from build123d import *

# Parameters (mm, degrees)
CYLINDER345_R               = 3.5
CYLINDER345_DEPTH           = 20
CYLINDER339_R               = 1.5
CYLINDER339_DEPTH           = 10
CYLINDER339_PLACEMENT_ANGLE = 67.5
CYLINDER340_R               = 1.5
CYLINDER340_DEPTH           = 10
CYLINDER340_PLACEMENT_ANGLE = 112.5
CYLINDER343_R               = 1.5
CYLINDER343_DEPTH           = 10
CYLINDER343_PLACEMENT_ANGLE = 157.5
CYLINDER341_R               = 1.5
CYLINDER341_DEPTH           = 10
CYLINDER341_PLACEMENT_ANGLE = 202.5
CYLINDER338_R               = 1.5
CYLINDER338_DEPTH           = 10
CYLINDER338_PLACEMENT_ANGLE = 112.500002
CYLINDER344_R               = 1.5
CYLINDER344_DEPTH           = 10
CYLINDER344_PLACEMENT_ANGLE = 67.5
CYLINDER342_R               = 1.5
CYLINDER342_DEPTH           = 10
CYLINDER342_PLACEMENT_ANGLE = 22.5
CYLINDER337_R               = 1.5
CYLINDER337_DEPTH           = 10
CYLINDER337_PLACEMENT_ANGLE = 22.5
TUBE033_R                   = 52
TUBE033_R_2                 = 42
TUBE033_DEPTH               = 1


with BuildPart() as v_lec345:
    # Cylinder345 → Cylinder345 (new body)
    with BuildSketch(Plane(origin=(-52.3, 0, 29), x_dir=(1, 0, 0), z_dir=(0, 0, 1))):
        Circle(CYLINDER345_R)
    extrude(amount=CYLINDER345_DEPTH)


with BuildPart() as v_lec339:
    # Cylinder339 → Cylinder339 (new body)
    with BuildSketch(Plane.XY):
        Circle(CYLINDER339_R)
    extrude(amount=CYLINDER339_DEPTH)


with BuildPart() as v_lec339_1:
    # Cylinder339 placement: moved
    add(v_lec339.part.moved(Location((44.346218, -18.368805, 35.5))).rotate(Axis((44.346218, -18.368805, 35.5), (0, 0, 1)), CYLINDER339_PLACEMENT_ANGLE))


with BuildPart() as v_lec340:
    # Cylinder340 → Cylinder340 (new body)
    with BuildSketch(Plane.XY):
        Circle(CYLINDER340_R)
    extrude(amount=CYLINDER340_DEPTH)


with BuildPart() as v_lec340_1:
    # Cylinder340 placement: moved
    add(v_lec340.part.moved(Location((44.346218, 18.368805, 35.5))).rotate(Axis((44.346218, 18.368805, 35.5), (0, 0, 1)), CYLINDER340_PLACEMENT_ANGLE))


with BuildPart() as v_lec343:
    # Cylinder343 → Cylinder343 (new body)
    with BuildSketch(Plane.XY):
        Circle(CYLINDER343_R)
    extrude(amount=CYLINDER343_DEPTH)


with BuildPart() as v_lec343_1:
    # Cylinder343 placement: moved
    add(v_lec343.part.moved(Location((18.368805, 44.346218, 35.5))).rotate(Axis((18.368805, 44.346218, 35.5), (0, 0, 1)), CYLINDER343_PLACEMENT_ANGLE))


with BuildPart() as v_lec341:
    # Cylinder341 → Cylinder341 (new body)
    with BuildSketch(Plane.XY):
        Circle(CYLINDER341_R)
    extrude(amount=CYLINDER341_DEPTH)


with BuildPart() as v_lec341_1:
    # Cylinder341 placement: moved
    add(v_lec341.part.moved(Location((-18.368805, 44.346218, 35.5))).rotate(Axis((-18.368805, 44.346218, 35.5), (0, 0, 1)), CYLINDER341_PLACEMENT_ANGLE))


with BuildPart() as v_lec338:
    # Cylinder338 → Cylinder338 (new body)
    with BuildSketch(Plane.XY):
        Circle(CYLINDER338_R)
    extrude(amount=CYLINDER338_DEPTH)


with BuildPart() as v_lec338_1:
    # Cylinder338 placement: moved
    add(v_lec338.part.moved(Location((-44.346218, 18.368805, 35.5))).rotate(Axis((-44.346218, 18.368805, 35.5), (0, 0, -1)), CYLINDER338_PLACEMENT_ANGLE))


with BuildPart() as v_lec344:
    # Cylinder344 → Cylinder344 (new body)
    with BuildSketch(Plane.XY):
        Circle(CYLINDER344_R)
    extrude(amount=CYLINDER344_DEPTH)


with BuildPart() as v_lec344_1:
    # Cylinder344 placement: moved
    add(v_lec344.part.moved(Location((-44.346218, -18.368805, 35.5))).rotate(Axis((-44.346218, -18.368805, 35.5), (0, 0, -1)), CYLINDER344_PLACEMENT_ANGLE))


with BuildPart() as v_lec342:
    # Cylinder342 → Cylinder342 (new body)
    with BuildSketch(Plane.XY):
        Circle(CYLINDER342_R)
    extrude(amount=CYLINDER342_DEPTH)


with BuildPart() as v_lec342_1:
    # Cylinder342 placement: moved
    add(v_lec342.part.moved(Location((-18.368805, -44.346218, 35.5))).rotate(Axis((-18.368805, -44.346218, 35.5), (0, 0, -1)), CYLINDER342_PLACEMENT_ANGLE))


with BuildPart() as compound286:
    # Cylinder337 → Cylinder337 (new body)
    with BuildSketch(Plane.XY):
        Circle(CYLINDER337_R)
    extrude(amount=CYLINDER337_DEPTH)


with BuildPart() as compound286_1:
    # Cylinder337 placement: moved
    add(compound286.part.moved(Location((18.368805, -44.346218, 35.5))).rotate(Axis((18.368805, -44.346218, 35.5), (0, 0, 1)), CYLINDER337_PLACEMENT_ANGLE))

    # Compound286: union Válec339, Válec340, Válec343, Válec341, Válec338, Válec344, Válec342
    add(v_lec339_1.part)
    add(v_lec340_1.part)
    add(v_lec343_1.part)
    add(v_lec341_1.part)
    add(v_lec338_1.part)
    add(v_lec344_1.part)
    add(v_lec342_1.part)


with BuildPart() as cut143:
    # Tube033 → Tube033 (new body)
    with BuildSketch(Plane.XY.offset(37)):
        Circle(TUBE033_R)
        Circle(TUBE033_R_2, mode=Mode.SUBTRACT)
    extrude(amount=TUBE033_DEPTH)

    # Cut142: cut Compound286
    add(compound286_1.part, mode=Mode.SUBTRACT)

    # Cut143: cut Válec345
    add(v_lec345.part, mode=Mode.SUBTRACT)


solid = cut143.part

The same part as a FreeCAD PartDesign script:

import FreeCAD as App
import Part
import Sketcher

doc = App.newDocument("Part")
params = doc.addObject("Spreadsheet::Sheet", "Params")
for row, (alias, value) in enumerate([
    ("sketch1_diameter", "7 mm"),
    ("pad1_length", "20 mm"),
    ("sketch2_diameter", "3 mm"),
    ("pad2_length", "10 mm"),
    ("sketch3_diameter", "3 mm"),
    ("pad3_length", "10 mm"),
    ("sketch4_diameter", "3 mm"),
    ("pad4_length", "10 mm"),
    ("sketch5_diameter", "3 mm"),
    ("pad5_length", "10 mm"),
    ("sketch6_diameter", "3 mm"),
    ("pad6_length", "10 mm"),
    ("sketch7_diameter", "3 mm"),
    ("pad7_length", "10 mm"),
    ("sketch8_diameter", "3 mm"),
    ("pad8_length", "10 mm"),
    ("sketch9_diameter", "3 mm"),
    ("pad9_length", "10 mm"),
    ("sketch10_diameter", "104 mm"),
    ("sketch10_diameter2", "84 mm"),
    ("pad10_length", "1 mm"),
], start=1):
    params.set(f"A{row}", alias)
    params.set(f"B{row}", "=" + value)
    params.setAlias(f"B{row}", alias)

body = doc.addObject("PartDesign::Body", "Body")

# Sketch on XY plane
sketch1 = body.newObject("Sketcher::SketchObject", "Sketch")
sketch1.AttachmentSupport = (doc.getObject("XY_Plane"), [""])
sketch1.MapMode = "FlatFace"
sketch1.AttachmentOffset = App.Placement(App.Vector(0, 0, 29), App.Rotation())
sketch1.addGeometry(Part.Circle(App.Vector(-52.3, 0, 0), App.Vector(0, 0, 1), 3.5), False)
sketch1.addConstraint([
    Sketcher.Constraint("PointOnObject", 0, 3, -1),
    Sketcher.Constraint("Diameter", 0, 7.0),
    Sketcher.Constraint("DistanceX", 0, 3, -1, 1, 52.3),
])
sketch1.setExpression("Constraints[1]", "Params.sketch1_diameter")
pad1 = body.newObject("PartDesign::Pad", "Pad")
pad1.Profile = sketch1
pad1.setExpression("Length", "Params.pad1_length")
body2 = doc.addObject("PartDesign::Body", "Body001")

# Sketch on XY plane
sketch2 = body2.newObject("Sketcher::SketchObject", "Sketch001")
sketch2.AttachmentSupport = (doc.getObject("XY_Plane001"), [""])
sketch2.MapMode = "FlatFace"
sketch2.addGeometry(Part.Circle(App.Vector(0, 0, 0), App.Vector(0, 0, 1), 1.5), False)
sketch2.addConstraint([
    Sketcher.Constraint("Coincident", 0, 3, -1, 1),
    Sketcher.Constraint("Diameter", 0, 3.0),
])
sketch2.setExpression("Constraints[1]", "Params.sketch2_diameter")
pad2 = body2.newObject("PartDesign::Pad", "Pad001")
pad2.Profile = sketch2
pad2.setExpression("Length", "Params.pad2_length")
body3 = doc.addObject("PartDesign::Body", "Body002")
doc.recompute()

body2.Placement = App.Placement(App.Vector(44.346218, -18.368805, 35.5), App.Rotation(App.Vector(0, 0, 1), 67.5))
boolean = body3.newObject("PartDesign::Boolean", "Boolean")
boolean.Type = "Fuse"
boolean.addObjects([body2])
body4 = doc.addObject("PartDesign::Body", "Body003")

# Sketch on XY plane
sketch3 = body4.newObject("Sketcher::SketchObject", "Sketch002")
sketch3.AttachmentSupport = (doc.getObject("XY_Plane003"), [""])
sketch3.MapMode = "FlatFace"
sketch3.addGeometry(Part.Circle(App.Vector(0, 0, 0), App.Vector(0, 0, 1), 1.5), False)
sketch3.addConstraint([
    Sketcher.Constraint("Coincident", 0, 3, -1, 1),
    Sketcher.Constraint("Diameter", 0, 3.0),
])
sketch3.setExpression("Constraints[1]", "Params.sketch3_diameter")
pad3 = body4.newObject("PartDesign::Pad", "Pad002")
pad3.Profile = sketch3
pad3.setExpression("Length", "Params.pad3_length")
body5 = doc.addObject("PartDesign::Body", "Body004")
doc.recompute()

body4.Placement = App.Placement(App.Vector(44.346218, 18.368805, 35.5), App.Rotation(App.Vector(0, 0, 1), 112.5))
boolean2 = body5.newObject("PartDesign::Boolean", "Boolean001")
boolean2.Type = "Fuse"
boolean2.addObjects([body4])
body6 = doc.addObject("PartDesign::Body", "Body005")

# Sketch on XY plane
sketch4 = body6.newObject("Sketcher::SketchObject", "Sketch003")
sketch4.AttachmentSupport = (doc.getObject("XY_Plane005"), [""])
sketch4.MapMode = "FlatFace"
sketch4.addGeometry(Part.Circle(App.Vector(0, 0, 0), App.Vector(0, 0, 1), 1.5), False)
sketch4.addConstraint([
    Sketcher.Constraint("Coincident", 0, 3, -1, 1),
    Sketcher.Constraint("Diameter", 0, 3.0),
])
sketch4.setExpression("Constraints[1]", "Params.sketch4_diameter")
pad4 = body6.newObject("PartDesign::Pad", "Pad003")
pad4.Profile = sketch4
pad4.setExpression("Length", "Params.pad4_length")
body7 = doc.addObject("PartDesign::Body", "Body006")
doc.recompute()

body6.Placement = App.Placement(App.Vector(18.368805, 44.346218, 35.5), App.Rotation(App.Vector(0, 0, 1), 157.5))
boolean3 = body7.newObject("PartDesign::Boolean", "Boolean002")
boolean3.Type = "Fuse"
boolean3.addObjects([body6])
body8 = doc.addObject("PartDesign::Body", "Body007")

# Sketch on XY plane
sketch5 = body8.newObject("Sketcher::SketchObject", "Sketch004")
sketch5.AttachmentSupport = (doc.getObject("XY_Plane007"), [""])
sketch5.MapMode = "FlatFace"
sketch5.addGeometry(Part.Circle(App.Vector(0, 0, 0), App.Vector(0, 0, 1), 1.5), False)
sketch5.addConstraint([
    Sketcher.Constraint("Coincident", 0, 3, -1, 1),
    Sketcher.Constraint("Diameter", 0, 3.0),
])
sketch5.setExpression("Constraints[1]", "Params.sketch5_diameter")
pad5 = body8.newObject("PartDesign::Pad", "Pad004")
pad5.Profile = sketch5
pad5.setExpression("Length", "Params.pad5_length")
body9 = doc.addObject("PartDesign::Body", "Body008")
doc.recompute()

body8.Placement = App.Placement(App.Vector(-18.368805, 44.346218, 35.5), App.Rotation(App.Vector(0, 0, 1), 202.5))
boolean4 = body9.newObject("PartDesign::Boolean", "Boolean003")
boolean4.Type = "Fuse"
boolean4.addObjects([body8])
body10 = doc.addObject("PartDesign::Body", "Body009")

# Sketch on XY plane
sketch6 = body10.newObject("Sketcher::SketchObject", "Sketch005")
sketch6.AttachmentSupport = (doc.getObject("XY_Plane009"), [""])
sketch6.MapMode = "FlatFace"
sketch6.addGeometry(Part.Circle(App.Vector(0, 0, 0), App.Vector(0, 0, 1), 1.5), False)
sketch6.addConstraint([
    Sketcher.Constraint("Coincident", 0, 3, -1, 1),
    Sketcher.Constraint("Diameter", 0, 3.0),
])
sketch6.setExpression("Constraints[1]", "Params.sketch6_diameter")
pad6 = body10.newObject("PartDesign::Pad", "Pad005")
pad6.Profile = sketch6
pad6.setExpression("Length", "Params.pad6_length")
body11 = doc.addObject("PartDesign::Body", "Body010")
doc.recompute()

body10.Placement = App.Placement(App.Vector(-44.346218, 18.368805, 35.5), App.Rotation(App.Vector(0, 0, -1), 112.500002))
boolean5 = body11.newObject("PartDesign::Boolean", "Boolean004")
boolean5.Type = "Fuse"
boolean5.addObjects([body10])
body12 = doc.addObject("PartDesign::Body", "Body011")

# Sketch on XY plane
sketch7 = body12.newObject("Sketcher::SketchObject", "Sketch006")
sketch7.AttachmentSupport = (doc.getObject("XY_Plane011"), [""])
sketch7.MapMode = "FlatFace"
sketch7.addGeometry(Part.Circle(App.Vector(0, 0, 0), App.Vector(0, 0, 1), 1.5), False)
sketch7.addConstraint([
    Sketcher.Constraint("Coincident", 0, 3, -1, 1),
    Sketcher.Constraint("Diameter", 0, 3.0),
])
sketch7.setExpression("Constraints[1]", "Params.sketch7_diameter")
pad7 = body12.newObject("PartDesign::Pad", "Pad006")
pad7.Profile = sketch7
pad7.setExpression("Length", "Params.pad7_length")
body13 = doc.addObject("PartDesign::Body", "Body012")
doc.recompute()

body12.Placement = App.Placement(App.Vector(-44.346218, -18.368805, 35.5), App.Rotation(App.Vector(0, 0, -1), 67.5))
boolean6 = body13.newObject("PartDesign::Boolean", "Boolean005")
boolean6.Type = "Fuse"
boolean6.addObjects([body12])
body14 = doc.addObject("PartDesign::Body", "Body013")

# Sketch on XY plane
sketch8 = body14.newObject("Sketcher::SketchObject", "Sketch007")
sketch8.AttachmentSupport = (doc.getObject("XY_Plane013"), [""])
sketch8.MapMode = "FlatFace"
sketch8.addGeometry(Part.Circle(App.Vector(0, 0, 0), App.Vector(0, 0, 1), 1.5), False)
sketch8.addConstraint([
    Sketcher.Constraint("Coincident", 0, 3, -1, 1),
    Sketcher.Constraint("Diameter", 0, 3.0),
])
sketch8.setExpression("Constraints[1]", "Params.sketch8_diameter")
pad8 = body14.newObject("PartDesign::Pad", "Pad007")
pad8.Profile = sketch8
pad8.setExpression("Length", "Params.pad8_length")
body15 = doc.addObject("PartDesign::Body", "Body014")
doc.recompute()

body14.Placement = App.Placement(App.Vector(-18.368805, -44.346218, 35.5), App.Rotation(App.Vector(0, 0, -1), 22.5))
boolean7 = body15.newObject("PartDesign::Boolean", "Boolean006")
boolean7.Type = "Fuse"
boolean7.addObjects([body14])
body16 = doc.addObject("PartDesign::Body", "Body015")

# Sketch on XY plane
sketch9 = body16.newObject("Sketcher::SketchObject", "Sketch008")
sketch9.AttachmentSupport = (doc.getObject("XY_Plane015"), [""])
sketch9.MapMode = "FlatFace"
sketch9.addGeometry(Part.Circle(App.Vector(0, 0, 0), App.Vector(0, 0, 1), 1.5), False)
sketch9.addConstraint([
    Sketcher.Constraint("Coincident", 0, 3, -1, 1),
    Sketcher.Constraint("Diameter", 0, 3.0),
])
sketch9.setExpression("Constraints[1]", "Params.sketch9_diameter")
pad9 = body16.newObject("PartDesign::Pad", "Pad008")
pad9.Profile = sketch9
pad9.setExpression("Length", "Params.pad9_length")
body17 = doc.addObject("PartDesign::Body", "Body016")
body17.AllowCompound = True
doc.recompute()

body16.Placement = App.Placement(App.Vector(18.368805, -44.346218, 35.5), App.Rotation(App.Vector(0, 0, 1), 22.5))
boolean8 = body17.newObject("PartDesign::Boolean", "Boolean007")
boolean8.Type = "Fuse"
boolean8.addObjects([body16])
doc.recompute()

boolean9 = body17.newObject("PartDesign::Boolean", "Boolean008")
boolean9.Type = "Fuse"
boolean9.addObjects([body3])
doc.recompute()

boolean10 = body17.newObject("PartDesign::Boolean", "Boolean009")
boolean10.Type = "Fuse"
boolean10.addObjects([body5])
doc.recompute()

boolean11 = body17.newObject("PartDesign::Boolean", "Boolean010")
boolean11.Type = "Fuse"
boolean11.addObjects([body7])
doc.recompute()

boolean12 = body17.newObject("PartDesign::Boolean", "Boolean011")
boolean12.Type = "Fuse"
boolean12.addObjects([body9])
doc.recompute()

boolean13 = body17.newObject("PartDesign::Boolean", "Boolean012")
boolean13.Type = "Fuse"
boolean13.addObjects([body11])
doc.recompute()

boolean14 = body17.newObject("PartDesign::Boolean", "Boolean013")
boolean14.Type = "Fuse"
boolean14.addObjects([body13])
doc.recompute()

boolean15 = body17.newObject("PartDesign::Boolean", "Boolean014")
boolean15.Type = "Fuse"
boolean15.addObjects([body15])
body18 = doc.addObject("PartDesign::Body", "Body017")

# Sketch on XY plane
sketch10 = body18.newObject("Sketcher::SketchObject", "Sketch009")
sketch10.AttachmentSupport = (doc.getObject("XY_Plane017"), [""])
sketch10.MapMode = "FlatFace"
sketch10.AttachmentOffset = App.Placement(App.Vector(0, 0, 37), App.Rotation())
sketch10.addGeometry([
    Part.Circle(App.Vector(0, 0, 0), App.Vector(0, 0, 1), 52),
    Part.Circle(App.Vector(0, 0, 0), App.Vector(0, 0, 1), 42),
], False)
sketch10.addConstraint([
    Sketcher.Constraint("Coincident", 0, 3, -1, 1),
    Sketcher.Constraint("Coincident", 1, 3, -1, 1),
    Sketcher.Constraint("Diameter", 0, 104.0),
    Sketcher.Constraint("Diameter", 1, 84.0),
])
sketch10.setExpression("Constraints[2]", "Params.sketch10_diameter")
sketch10.setExpression("Constraints[3]", "Params.sketch10_diameter2")
pad10 = body18.newObject("PartDesign::Pad", "Pad009")
pad10.Profile = sketch10
pad10.setExpression("Length", "Params.pad10_length")
doc.recompute()

boolean16 = body18.newObject("PartDesign::Boolean", "Boolean015")
boolean16.Type = "Cut"
boolean16.addObjects([body17])
doc.recompute()

boolean17 = body18.newObject("PartDesign::Boolean", "Boolean016")
boolean17.Type = "Cut"
boolean17.addObjects([body])

doc.recompute()
